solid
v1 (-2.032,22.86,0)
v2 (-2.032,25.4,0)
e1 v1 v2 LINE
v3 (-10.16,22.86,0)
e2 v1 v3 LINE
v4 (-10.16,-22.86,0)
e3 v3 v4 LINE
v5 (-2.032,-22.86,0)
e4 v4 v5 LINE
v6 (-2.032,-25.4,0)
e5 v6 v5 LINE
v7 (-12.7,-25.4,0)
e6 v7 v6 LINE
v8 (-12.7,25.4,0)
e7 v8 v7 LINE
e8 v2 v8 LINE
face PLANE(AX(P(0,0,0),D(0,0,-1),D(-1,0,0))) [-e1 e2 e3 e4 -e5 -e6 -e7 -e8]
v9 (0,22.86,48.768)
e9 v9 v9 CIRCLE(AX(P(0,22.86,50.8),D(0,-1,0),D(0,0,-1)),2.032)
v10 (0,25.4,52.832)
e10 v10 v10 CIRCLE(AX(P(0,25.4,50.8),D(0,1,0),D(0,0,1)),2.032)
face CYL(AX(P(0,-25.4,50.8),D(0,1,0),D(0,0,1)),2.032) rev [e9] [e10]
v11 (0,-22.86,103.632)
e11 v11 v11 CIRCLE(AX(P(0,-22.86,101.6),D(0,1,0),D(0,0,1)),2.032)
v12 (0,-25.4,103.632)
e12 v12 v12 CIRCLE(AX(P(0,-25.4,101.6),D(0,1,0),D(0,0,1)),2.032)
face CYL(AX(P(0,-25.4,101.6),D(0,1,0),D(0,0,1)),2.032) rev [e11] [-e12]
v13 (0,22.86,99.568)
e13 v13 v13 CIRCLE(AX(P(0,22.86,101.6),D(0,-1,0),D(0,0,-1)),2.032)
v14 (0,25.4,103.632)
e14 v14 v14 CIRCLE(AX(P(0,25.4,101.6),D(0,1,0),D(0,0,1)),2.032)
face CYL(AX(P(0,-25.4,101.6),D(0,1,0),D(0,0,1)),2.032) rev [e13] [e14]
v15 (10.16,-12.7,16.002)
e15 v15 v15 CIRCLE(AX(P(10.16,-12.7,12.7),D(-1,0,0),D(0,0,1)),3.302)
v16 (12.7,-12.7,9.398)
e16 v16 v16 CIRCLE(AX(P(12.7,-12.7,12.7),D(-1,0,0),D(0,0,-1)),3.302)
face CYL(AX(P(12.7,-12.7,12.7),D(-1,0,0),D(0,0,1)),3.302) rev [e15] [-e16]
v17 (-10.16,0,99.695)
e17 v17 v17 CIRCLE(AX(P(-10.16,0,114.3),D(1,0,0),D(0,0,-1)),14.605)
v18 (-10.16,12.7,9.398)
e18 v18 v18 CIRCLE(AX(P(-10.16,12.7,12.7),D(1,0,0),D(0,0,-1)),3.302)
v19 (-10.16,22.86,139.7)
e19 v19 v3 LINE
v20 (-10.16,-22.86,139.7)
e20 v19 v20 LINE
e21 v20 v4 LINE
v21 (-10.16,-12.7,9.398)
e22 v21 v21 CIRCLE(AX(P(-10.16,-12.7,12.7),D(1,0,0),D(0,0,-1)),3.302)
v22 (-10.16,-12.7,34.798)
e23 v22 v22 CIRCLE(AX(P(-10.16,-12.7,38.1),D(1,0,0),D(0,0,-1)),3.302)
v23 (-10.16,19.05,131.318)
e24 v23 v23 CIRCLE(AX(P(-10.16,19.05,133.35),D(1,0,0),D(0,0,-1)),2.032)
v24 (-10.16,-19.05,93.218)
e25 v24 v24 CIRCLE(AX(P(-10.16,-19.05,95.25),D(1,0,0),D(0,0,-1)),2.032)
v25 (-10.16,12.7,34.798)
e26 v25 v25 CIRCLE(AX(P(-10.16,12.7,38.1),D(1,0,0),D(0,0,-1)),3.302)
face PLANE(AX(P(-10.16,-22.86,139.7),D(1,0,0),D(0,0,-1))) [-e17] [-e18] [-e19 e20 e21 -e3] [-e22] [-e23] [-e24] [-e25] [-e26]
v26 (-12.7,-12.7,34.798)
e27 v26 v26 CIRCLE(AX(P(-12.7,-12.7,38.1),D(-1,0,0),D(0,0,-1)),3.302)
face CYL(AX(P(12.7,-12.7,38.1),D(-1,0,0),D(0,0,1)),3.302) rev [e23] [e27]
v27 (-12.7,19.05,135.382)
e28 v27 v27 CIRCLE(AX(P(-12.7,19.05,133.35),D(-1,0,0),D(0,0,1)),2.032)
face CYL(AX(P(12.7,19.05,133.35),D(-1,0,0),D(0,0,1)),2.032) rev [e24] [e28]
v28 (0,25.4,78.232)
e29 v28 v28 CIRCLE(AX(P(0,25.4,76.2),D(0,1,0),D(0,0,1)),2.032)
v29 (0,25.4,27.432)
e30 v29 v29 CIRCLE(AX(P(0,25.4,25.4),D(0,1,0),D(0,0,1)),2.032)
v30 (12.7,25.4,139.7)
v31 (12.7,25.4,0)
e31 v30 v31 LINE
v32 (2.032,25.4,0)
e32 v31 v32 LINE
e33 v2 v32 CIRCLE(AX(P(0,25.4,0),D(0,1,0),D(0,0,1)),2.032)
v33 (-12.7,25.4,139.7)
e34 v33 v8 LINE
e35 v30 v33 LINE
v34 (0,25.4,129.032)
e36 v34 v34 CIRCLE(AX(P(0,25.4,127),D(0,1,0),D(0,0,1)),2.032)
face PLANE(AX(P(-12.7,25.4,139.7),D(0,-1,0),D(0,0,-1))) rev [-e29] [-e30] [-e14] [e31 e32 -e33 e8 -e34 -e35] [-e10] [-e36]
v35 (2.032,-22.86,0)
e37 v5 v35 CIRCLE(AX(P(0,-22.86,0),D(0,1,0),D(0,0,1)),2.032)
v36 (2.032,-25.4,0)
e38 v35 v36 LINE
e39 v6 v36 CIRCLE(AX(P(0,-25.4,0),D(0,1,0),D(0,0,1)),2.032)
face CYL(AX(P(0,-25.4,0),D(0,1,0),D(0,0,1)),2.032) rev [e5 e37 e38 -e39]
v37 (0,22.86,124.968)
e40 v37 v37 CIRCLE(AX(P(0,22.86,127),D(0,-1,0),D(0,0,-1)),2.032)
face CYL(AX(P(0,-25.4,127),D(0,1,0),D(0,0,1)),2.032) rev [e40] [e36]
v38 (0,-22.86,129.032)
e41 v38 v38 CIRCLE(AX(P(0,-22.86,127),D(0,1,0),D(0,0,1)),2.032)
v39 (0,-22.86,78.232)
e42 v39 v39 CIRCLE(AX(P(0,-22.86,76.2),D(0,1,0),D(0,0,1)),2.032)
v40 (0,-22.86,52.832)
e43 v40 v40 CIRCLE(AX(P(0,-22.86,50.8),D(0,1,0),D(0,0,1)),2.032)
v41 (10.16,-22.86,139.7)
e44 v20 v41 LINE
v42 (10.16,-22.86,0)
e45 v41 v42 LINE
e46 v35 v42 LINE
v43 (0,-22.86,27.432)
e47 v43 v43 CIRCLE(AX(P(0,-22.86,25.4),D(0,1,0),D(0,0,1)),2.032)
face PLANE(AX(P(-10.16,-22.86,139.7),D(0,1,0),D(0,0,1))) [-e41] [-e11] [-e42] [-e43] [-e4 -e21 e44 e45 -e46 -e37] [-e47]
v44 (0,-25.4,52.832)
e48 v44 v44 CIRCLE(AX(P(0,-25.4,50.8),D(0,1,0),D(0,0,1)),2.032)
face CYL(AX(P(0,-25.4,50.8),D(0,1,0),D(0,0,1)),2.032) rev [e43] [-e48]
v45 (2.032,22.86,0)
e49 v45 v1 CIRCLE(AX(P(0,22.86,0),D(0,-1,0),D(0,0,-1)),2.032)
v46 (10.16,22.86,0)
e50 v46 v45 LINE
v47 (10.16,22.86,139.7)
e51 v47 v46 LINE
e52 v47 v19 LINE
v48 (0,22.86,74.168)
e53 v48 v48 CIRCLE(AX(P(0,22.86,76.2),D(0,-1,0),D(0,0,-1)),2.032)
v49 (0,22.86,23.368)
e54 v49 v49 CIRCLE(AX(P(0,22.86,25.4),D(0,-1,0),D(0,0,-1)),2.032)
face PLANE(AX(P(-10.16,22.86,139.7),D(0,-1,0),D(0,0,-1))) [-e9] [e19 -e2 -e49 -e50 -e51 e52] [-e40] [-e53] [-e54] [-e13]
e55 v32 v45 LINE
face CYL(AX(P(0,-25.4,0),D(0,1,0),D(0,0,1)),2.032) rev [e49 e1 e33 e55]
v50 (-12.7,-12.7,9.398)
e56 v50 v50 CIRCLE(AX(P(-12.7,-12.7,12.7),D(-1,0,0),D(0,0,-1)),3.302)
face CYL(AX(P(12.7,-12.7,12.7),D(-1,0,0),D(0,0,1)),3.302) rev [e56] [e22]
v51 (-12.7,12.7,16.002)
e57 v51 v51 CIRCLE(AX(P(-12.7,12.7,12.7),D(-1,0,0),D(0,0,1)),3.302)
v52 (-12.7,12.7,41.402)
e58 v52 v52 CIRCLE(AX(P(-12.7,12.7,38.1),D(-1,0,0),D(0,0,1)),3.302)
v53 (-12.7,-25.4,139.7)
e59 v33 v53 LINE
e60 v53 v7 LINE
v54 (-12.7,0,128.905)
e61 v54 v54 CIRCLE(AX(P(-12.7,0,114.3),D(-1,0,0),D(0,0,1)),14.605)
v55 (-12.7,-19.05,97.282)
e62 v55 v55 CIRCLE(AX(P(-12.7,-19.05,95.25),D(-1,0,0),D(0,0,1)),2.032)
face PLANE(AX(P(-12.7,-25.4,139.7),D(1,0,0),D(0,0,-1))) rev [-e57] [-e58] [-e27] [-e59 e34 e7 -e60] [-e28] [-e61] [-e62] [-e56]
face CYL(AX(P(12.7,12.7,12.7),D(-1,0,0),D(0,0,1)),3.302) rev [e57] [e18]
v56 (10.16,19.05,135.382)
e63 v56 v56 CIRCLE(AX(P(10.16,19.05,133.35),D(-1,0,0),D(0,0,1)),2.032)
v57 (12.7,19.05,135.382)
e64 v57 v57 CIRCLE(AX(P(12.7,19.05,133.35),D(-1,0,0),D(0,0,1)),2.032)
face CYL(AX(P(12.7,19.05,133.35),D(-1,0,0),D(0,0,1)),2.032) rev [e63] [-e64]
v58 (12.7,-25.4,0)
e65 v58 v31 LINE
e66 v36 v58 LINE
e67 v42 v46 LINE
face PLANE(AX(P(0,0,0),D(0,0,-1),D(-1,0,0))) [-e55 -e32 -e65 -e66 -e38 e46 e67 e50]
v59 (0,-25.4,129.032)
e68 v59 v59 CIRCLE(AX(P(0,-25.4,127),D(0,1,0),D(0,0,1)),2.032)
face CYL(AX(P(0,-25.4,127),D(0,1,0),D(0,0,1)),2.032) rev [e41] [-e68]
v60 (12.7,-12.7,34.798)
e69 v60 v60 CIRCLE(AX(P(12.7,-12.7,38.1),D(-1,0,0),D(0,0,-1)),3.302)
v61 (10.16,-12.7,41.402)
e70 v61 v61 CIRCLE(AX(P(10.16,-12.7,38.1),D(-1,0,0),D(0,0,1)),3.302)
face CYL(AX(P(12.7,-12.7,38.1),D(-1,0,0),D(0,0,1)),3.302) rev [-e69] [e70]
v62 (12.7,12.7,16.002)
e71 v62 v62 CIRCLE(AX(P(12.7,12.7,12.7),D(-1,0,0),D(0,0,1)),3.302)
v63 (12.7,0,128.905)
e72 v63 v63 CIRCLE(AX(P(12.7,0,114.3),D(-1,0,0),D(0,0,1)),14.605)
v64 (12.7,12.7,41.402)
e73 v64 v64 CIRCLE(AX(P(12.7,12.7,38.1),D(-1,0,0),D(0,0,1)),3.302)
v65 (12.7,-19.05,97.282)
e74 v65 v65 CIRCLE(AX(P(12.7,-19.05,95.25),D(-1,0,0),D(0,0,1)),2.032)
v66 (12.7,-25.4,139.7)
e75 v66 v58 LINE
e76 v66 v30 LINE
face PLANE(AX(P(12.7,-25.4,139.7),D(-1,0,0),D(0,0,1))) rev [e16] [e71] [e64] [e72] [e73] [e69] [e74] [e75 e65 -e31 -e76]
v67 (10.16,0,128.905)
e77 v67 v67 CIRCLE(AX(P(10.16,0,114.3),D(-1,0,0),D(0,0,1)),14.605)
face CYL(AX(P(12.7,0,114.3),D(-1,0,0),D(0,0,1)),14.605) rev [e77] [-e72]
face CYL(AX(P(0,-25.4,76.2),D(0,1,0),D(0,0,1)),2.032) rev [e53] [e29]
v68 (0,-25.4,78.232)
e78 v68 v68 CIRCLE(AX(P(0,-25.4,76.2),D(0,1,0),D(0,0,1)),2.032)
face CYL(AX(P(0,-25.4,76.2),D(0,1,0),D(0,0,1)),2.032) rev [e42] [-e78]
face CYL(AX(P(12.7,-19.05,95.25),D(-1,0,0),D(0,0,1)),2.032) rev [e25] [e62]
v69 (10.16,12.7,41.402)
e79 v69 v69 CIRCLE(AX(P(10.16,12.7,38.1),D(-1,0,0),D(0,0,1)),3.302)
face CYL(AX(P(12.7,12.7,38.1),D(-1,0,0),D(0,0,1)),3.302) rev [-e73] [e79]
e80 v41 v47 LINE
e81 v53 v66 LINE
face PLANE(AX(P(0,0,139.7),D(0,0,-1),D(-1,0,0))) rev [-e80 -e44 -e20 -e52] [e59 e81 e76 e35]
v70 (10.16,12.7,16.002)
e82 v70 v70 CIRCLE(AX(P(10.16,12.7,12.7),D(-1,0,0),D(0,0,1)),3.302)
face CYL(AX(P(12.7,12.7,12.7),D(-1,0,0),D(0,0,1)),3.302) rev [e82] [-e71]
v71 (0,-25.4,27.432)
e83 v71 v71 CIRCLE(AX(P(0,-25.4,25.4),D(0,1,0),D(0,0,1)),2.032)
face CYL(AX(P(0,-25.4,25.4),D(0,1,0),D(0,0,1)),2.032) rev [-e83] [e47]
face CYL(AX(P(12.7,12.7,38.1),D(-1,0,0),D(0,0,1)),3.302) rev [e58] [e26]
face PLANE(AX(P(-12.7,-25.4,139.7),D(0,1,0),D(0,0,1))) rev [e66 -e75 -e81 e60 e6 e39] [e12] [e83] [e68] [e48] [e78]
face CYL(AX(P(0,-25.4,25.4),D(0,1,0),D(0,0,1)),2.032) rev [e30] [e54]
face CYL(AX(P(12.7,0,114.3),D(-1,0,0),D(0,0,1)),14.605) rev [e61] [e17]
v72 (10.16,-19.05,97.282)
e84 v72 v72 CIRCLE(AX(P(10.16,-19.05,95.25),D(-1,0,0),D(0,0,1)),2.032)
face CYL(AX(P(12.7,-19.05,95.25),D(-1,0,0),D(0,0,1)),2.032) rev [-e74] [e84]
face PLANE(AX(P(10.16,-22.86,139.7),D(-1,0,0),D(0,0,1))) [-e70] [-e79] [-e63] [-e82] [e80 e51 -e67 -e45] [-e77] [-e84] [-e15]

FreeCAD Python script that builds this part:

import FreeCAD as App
import Part
import Sketcher

V = App.Vector
Q = App.Units.Quantity

doc = App.newDocument("Part")
body = doc.addObject("PartDesign::Body", "Body")

# Sketch on XY plane
sketch1 = doc.addObject("Sketcher::SketchObject", "Sketch")
body.addObject(sketch1)
sketch1.AttachmentSupport = (doc.XY_Plane, [""])
sketch1.MapMode = "FlatFace"
sketch1.addGeometry(Part.LineSegment(V(-12.7, 25.4, 0), V(-12.7, -25.4, 0)), False)
sketch1.addGeometry(Part.LineSegment(V(-12.7, -25.4, 0), V(12.7, -25.4, 0)), False)
sketch1.addGeometry(Part.LineSegment(V(12.7, -25.4, 0), V(12.7, 25.4, 0)), False)
sketch1.addGeometry(Part.LineSegment(V(12.7, 25.4, 0), V(-12.7, 25.4, 0)), False)
sketch1.addGeometry(Part.LineSegment(V(10.16, -22.86, 0), V(-10.16, -22.86, 0)), False)
sketch1.addGeometry(Part.LineSegment(V(-10.16, -22.86, 0), V(-10.16, 22.86, 0)), False)
sketch1.addGeometry(Part.LineSegment(V(-10.16, 22.86, 0), V(10.16, 22.86, 0)), False)
sketch1.addGeometry(Part.LineSegment(V(10.16, 22.86, 0), V(10.16, -22.86, 0)), False)
sketch1.addConstraint(Sketcher.Constraint("Coincident", 0, 2, 1, 1))
sketch1.addConstraint(Sketcher.Constraint("Coincident", 1, 2, 2, 1))
sketch1.addConstraint(Sketcher.Constraint("Coincident", 2, 2, 3, 1))
sketch1.addConstraint(Sketcher.Constraint("Coincident", 3, 2, 0, 1))
sketch1.addConstraint(Sketcher.Constraint("Coincident", 4, 2, 5, 1))
sketch1.addConstraint(Sketcher.Constraint("Coincident", 5, 2, 6, 1))
sketch1.addConstraint(Sketcher.Constraint("Coincident", 6, 2, 7, 1))
sketch1.addConstraint(Sketcher.Constraint("Coincident", 7, 2, 4, 1))
sketch1.addConstraint(Sketcher.Constraint("Vertical", 0))
sketch1.addConstraint(Sketcher.Constraint("Horizontal", 1))
sketch1.addConstraint(Sketcher.Constraint("Vertical", 2))
sketch1.addConstraint(Sketcher.Constraint("Horizontal", 3))
sketch1.addConstraint(Sketcher.Constraint("Horizontal", 4))
sketch1.addConstraint(Sketcher.Constraint("Vertical", 5))
sketch1.addConstraint(Sketcher.Constraint("Horizontal", 6))
sketch1.addConstraint(Sketcher.Constraint("Vertical", 7))
sketch1.addConstraint(Sketcher.Constraint("Symmetric", 0, 2, 2, 2, -1, 1))
sketch1.addConstraint(Sketcher.Constraint("Symmetric", 4, 2, 6, 2, -1, 1))
sketch1.addConstraint(Sketcher.Constraint("DistanceX", 1, 1, 1, 2, Q("1 in")))
sketch1.addConstraint(Sketcher.Constraint("DistanceY", 0, 2, 0, 1, Q("2 in")))
sketch1.addConstraint(Sketcher.Constraint("DistanceX", 4, 2, 4, 1, Q("0.8 in")))
sketch1.addConstraint(Sketcher.Constraint("DistanceY", 5, 1, 5, 2, Q("1.8 in")))
pad1 = doc.addObject("PartDesign::Pad", "Pad")
body.addObject(pad1)
pad1.Profile = sketch1
pad1.Length = Q("5.5 in")

# Sketch on XZ plane
sketch2 = doc.addObject("Sketcher::SketchObject", "Sketch001")
body.addObject(sketch2)
sketch2.AttachmentSupport = (doc.XZ_Plane, [""])
sketch2.MapMode = "FlatFace"
sketch2.AttachmentOffset = App.Placement(V(0, 0, -1 * 25.4), App.Rotation())
sketch2.addGeometry(Part.Circle(V(0, 0, 0), V(0, 0, 1), 2.032), False)
sketch2.addGeometry(Part.Circle(V(0, 25.4, 0), V(0, 0, 1), 2.032), False)
sketch2.addGeometry(Part.Circle(V(0, 50.8, 0), V(0, 0, 1), 2.032), False)
sketch2.addGeometry(Part.Circle(V(0, 76.2, 0), V(0, 0, 1), 2.032), False)
sketch2.addGeometry(Part.Circle(V(0, 101.6, 0), V(0, 0, 1), 2.032), False)
sketch2.addGeometry(Part.Circle(V(0, 127, 0), V(0, 0, 1), 2.032), False)
sketch2.addGeometry(Part.Circle(V(0, 152.4, 0), V(0, 0, 1), 2.032), False)
sketch2.addGeometry(Part.Circle(V(0, 177.8, 0), V(0, 0, 1), 2.032), False)
sketch2.addGeometry(Part.Circle(V(0, 203.2, 0), V(0, 0, 1), 2.032), False)
sketch2.addGeometry(Part.Circle(V(0, 228.6, 0), V(0, 0, 1), 2.032), False)
sketch2.addConstraint(Sketcher.Constraint("Coincident", 0, 3, -1, 1))
sketch2.addConstraint(Sketcher.Constraint("Equal", 0, 1))
sketch2.addConstraint(Sketcher.Constraint("Equal", 1, 2))
sketch2.addConstraint(Sketcher.Constraint("Equal", 2, 3))
sketch2.addConstraint(Sketcher.Constraint("Equal", 3, 4))
sketch2.addConstraint(Sketcher.Constraint("Equal", 4, 5))
sketch2.addConstraint(Sketcher.Constraint("Equal", 5, 6))
sketch2.addConstraint(Sketcher.Constraint("Equal", 6, 7))
sketch2.addConstraint(Sketcher.Constraint("Equal", 7, 8))
sketch2.addConstraint(Sketcher.Constraint("Equal", 8, 9))
sketch2.addConstraint(Sketcher.Constraint("PointOnObject", 1, 3, -2))
sketch2.addConstraint(Sketcher.Constraint("PointOnObject", 2, 3, -2))
sketch2.addConstraint(Sketcher.Constraint("PointOnObject", 3, 3, -2))
sketch2.addConstraint(Sketcher.Constraint("PointOnObject", 4, 3, -2))
sketch2.addConstraint(Sketcher.Constraint("PointOnObject", 5, 3, -2))
sketch2.addConstraint(Sketcher.Constraint("PointOnObject", 6, 3, -2))
sketch2.addConstraint(Sketcher.Constraint("PointOnObject", 7, 3, -2))
sketch2.addConstraint(Sketcher.Constraint("PointOnObject", 8, 3, -2))
sketch2.addConstraint(Sketcher.Constraint("PointOnObject", 9, 3, -2))
sketch2.addConstraint(Sketcher.Constraint("Diameter", 0, Q("0.16 in")))
sketch2.addConstraint(Sketcher.Constraint("DistanceY", -1, 1, 1, 3, Q("1 in")))
sketch2.addConstraint(Sketcher.Constraint("DistanceY", -1, 1, 2, 3, Q("2 in")))
sketch2.addConstraint(Sketcher.Constraint("DistanceY", -1, 1, 3, 3, Q("3 in")))
sketch2.addConstraint(Sketcher.Constraint("DistanceY", -1, 1, 4, 3, Q("4 in")))
sketch2.addConstraint(Sketcher.Constraint("DistanceY", -1, 1, 5, 3, Q("5 in")))
sketch2.addConstraint(Sketcher.Constraint("DistanceY", -1, 1, 6, 3, Q("6 in")))
sketch2.addConstraint(Sketcher.Constraint("DistanceY", -1, 1, 7, 3, Q("7 in")))
sketch2.addConstraint(Sketcher.Constraint("DistanceY", -1, 1, 8, 3, Q("8 in")))
sketch2.addConstraint(Sketcher.Constraint("DistanceY", -1, 1, 9, 3, Q("9 in")))
pocket1 = doc.addObject("PartDesign::Pocket", "Pocket")
body.addObject(pocket1)
pocket1.Profile = sketch2
pocket1.Type = "ThroughAll"
pocket1.Reversed = True

# Sketch on YZ plane
sketch3 = doc.addObject("Sketcher::SketchObject", "Sketch002")
body.addObject(sketch3)
sketch3.AttachmentSupport = (doc.YZ_Plane, [""])
sketch3.MapMode = "FlatFace"
sketch3.AttachmentOffset = App.Placement(V(0, 0, -0.5 * 25.4), App.Rotation())
sketch3.addGeometry(Part.Circle(V(19.05, 133.35, 0), V(0, 0, 1), 2.032), False)
sketch3.addGeometry(Part.Circle(V(-19.05, 95.25, 0), V(0, 0, 1), 2.032), False)
sketch3.addGeometry(Part.Circle(V(0, 114.3, 0), V(0, 0, 1), 14.605), False)
sketch3.addGeometry(Part.Circle(V(12.7, 12.7, 0), V(0, 0, 1), 3.302), False)
sketch3.addGeometry(Part.Circle(V(12.7, 38.1, 0), V(0, 0, 1), 3.302), False)
sketch3.addGeometry(Part.Circle(V(-12.7, 38.1, 0), V(0, 0, 1), 3.302), False)
sketch3.addGeometry(Part.Circle(V(-12.7, 12.7, 0), V(0, 0, 1), 3.302), False)
sketch3.addConstraint(Sketcher.Constraint("Equal", 0, 1))
sketch3.addConstraint(Sketcher.Constraint("Equal", 3, 4))
sketch3.addConstraint(Sketcher.Constraint("Equal", 4, 5))
sketch3.addConstraint(Sketcher.Constraint("Equal", 5, 6))
sketch3.addConstraint(Sketcher.Constraint("Symmetric", 4, 3, 5, 3, -2))
sketch3.addConstraint(Sketcher.Constraint("Symmetric", 3, 3, 6, 3, -2))
sketch3.addConstraint(Sketcher.Constraint("PointOnObject", 2, 3, -2))
sketch3.addConstraint(Sketcher.Constraint("Vertical", 3, 3, 4, 3))
sketch3.addConstraint(Sketcher.Constraint("Diameter", 0, Q("0.16 in")))
sketch3.addConstraint(Sketcher.Constraint("Diameter", 2, Q("1.15 in")))
sketch3.addConstraint(Sketcher.Constraint("Diameter", 3, Q("0.26 in")))
sketch3.addConstraint(Sketcher.Constraint("DistanceY", 3, 3, 2, 3, Q("4 in")))
sketch3.addConstraint(Sketcher.Constraint("DistanceY", 3, 3, 4, 3, Q("1 in")))
sketch3.addConstraint(Sketcher.Constraint("DistanceX", 5, 3, 4, 3, Q("1 in")))
sketch3.addConstraint(Sketcher.Constraint("DistanceY", -1, 1, 2, 3, Q("4.5 in")))
sketch3.addConstraint(Sketcher.Constraint("DistanceX", 1, 3, 0, 3, Q("1.5 in")))
sketch3.addConstraint(Sketcher.Constraint("DistanceY", 1, 3, 0, 3, Q("1.5 in")))
sketch3.addConstraint(Sketcher.Constraint("DistanceX", -1, 1, 0, 3, Q("0.75 in")))
sketch3.addConstraint(Sketcher.Constraint("DistanceY", -1, 1, 0, 3, Q("5.25 in")))
pocket2 = doc.addObject("PartDesign::Pocket", "Pocket001")
body.addObject(pocket2)
pocket2.Profile = sketch3
pocket2.Type = "ThroughAll"
pocket2.Reversed = True

doc.recompute()
